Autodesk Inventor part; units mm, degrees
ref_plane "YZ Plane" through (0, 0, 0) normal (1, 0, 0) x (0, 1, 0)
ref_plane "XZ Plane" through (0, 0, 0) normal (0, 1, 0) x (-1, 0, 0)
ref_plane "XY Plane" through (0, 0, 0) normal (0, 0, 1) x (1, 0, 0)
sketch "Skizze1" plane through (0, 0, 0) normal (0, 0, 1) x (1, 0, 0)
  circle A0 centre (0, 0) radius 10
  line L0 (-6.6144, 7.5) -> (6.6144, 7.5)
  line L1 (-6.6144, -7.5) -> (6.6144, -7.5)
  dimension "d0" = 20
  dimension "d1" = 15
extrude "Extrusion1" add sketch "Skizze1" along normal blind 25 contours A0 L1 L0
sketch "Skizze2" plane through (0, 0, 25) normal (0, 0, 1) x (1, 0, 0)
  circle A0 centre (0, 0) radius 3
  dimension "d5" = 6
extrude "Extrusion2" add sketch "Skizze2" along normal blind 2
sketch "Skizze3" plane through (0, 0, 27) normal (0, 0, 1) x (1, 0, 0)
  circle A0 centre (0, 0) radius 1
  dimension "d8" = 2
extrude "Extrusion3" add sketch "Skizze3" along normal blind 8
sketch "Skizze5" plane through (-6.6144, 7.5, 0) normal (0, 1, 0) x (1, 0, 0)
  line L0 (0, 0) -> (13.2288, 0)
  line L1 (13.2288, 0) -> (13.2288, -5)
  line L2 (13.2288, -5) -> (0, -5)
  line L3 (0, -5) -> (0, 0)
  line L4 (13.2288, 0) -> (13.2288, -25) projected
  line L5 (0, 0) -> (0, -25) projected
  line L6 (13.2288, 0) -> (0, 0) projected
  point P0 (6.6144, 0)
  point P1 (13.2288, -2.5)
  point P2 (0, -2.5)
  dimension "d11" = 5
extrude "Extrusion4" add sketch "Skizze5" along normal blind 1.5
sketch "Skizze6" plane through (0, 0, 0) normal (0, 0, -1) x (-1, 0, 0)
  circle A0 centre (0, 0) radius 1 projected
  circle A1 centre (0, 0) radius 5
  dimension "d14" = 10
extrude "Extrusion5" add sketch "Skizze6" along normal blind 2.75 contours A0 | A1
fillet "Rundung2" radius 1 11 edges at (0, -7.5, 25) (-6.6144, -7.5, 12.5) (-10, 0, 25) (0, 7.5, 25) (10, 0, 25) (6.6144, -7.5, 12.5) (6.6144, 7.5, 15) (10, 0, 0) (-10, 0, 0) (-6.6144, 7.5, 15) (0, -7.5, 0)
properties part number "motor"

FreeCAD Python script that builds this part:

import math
import FreeCAD as App
import Part
import Sketcher
Q = App.Units.Quantity


def edges_at(feature, points):
    """Names of the edges that pass closest to the given points."""
    edges = feature.Shape.Edges
    near = lambda p: min(range(len(edges)), key=lambda i: edges[i].distToShape(Part.Vertex(*p))[0])
    return sorted({f"Edge{near(p) + 1}" for p in points})

doc = App.newDocument("Part")
body = doc.addObject("PartDesign::Body", "Body")

# Sketch on XY plane
sketch1 = body.newObject("Sketcher::SketchObject", "Sketch")
sketch1.AttachmentSupport = (doc.getObject("XY_Plane"), [""])
sketch1.MapMode = "FlatFace"
sketch1.addGeometry(Part.ArcOfCircle(Part.Circle(App.Vector(0, 0, 0), App.Vector(0, 0, 1), 10), math.radians(-49), math.radians(49)), False)
sketch1.addGeometry(Part.LineSegment(App.Vector(7, 8, 0), App.Vector(-7, 8, 0)), False)
sketch1.addGeometry(Part.ArcOfCircle(Part.Circle(App.Vector(0, 0, 0), App.Vector(0, 0, 1), 10), math.radians(131), math.radians(229)), False)
sketch1.addGeometry(Part.LineSegment(App.Vector(-7, -8, 0), App.Vector(7, -8, 0)), False)
sketch1.addConstraint(Sketcher.Constraint("Coincident", 0, 2, 1, 1))
sketch1.addConstraint(Sketcher.Constraint("Coincident", 1, 2, 2, 1))
sketch1.addConstraint(Sketcher.Constraint("Coincident", 2, 2, 3, 1))
sketch1.addConstraint(Sketcher.Constraint("Coincident", 3, 2, 0, 1))
sketch1.addConstraint(Sketcher.Constraint("Horizontal", 1))
sketch1.addConstraint(Sketcher.Constraint("Horizontal", 3))
sketch1.addConstraint(Sketcher.Constraint("Coincident", 0, 3, -1, 1))
sketch1.addConstraint(Sketcher.Constraint("Coincident", 2, 3, -1, 1))
sketch1.addConstraint(Sketcher.Constraint("Equal", 0, 2))
sketch1.addConstraint(Sketcher.Constraint("Vertical", 1, 2, 2, 2))
sketch1.addConstraint(Sketcher.Constraint("Radius", 0, Q("10 mm")))
sketch1.addConstraint(Sketcher.Constraint("DistanceY", 2, 2, 1, 2, Q("15 mm")))
pad1 = body.newObject("PartDesign::Pad", "Pad")
pad1.Profile = sketch1
pad1.Length = 25

# Sketch on XY plane
sketch2 = body.newObject("Sketcher::SketchObject", "Sketch001")
sketch2.AttachmentSupport = (doc.getObject("XY_Plane"), [""])
sketch2.MapMode = "FlatFace"
sketch2.AttachmentOffset = App.Placement(App.Vector(0, 0, 25), App.Rotation())
sketch2.addGeometry(Part.Circle(App.Vector(0, 0, 0), App.Vector(0, 0, 1), 3), False)
sketch2.addConstraint(Sketcher.Constraint("Coincident", 0, 3, -1, 1))
sketch2.addConstraint(Sketcher.Constraint("Diameter", 0, Q("6 mm")))
pad2 = body.newObject("PartDesign::Pad", "Pad001")
pad2.Profile = sketch2
pad2.Length = 2

# Sketch on XY plane
sketch3 = body.newObject("Sketcher::SketchObject", "Sketch002")
sketch3.AttachmentSupport = (doc.getObject("XY_Plane"), [""])
sketch3.MapMode = "FlatFace"
sketch3.AttachmentOffset = App.Placement(App.Vector(0, 0, 27), App.Rotation())
sketch3.addGeometry(Part.Circle(App.Vector(0, 0, 0), App.Vector(0, 0, 1), 1), False)
sketch3.addConstraint(Sketcher.Constraint("Coincident", 0, 3, -1, 1))
sketch3.addConstraint(Sketcher.Constraint("Diameter", 0, Q("2 mm")))
pad3 = body.newObject("PartDesign::Pad", "Pad002")
pad3.Profile = sketch3
pad3.Length = 8

# Sketch on XZ plane
sketch4 = body.newObject("Sketcher::SketchObject", "Sketch003")
sketch4.AttachmentSupport = (doc.getObject("XZ_Plane"), [""])
sketch4.MapMode = "FlatFace"
sketch4.AttachmentOffset = App.Placement(App.Vector(0, 0, -7.5), App.Rotation())
sketch4.addGeometry(Part.LineSegment(App.Vector(7, 0, 0), App.Vector(-7, 0, 0)), False)
sketch4.addGeometry(Part.LineSegment(App.Vector(-7, 0, 0), App.Vector(-7, 5, 0)), False)
sketch4.addGeometry(Part.LineSegment(App.Vector(-7, 5, 0), App.Vector(7, 5, 0)), False)
sketch4.addGeometry(Part.LineSegment(App.Vector(7, 5, 0), App.Vector(7, 0, 0)), False)
sketch4.addConstraint(Sketcher.Constraint("Coincident", 0, 2, 1, 1))
sketch4.addConstraint(Sketcher.Constraint("Coincident", 1, 2, 2, 1))
sketch4.addConstraint(Sketcher.Constraint("Coincident", 2, 2, 3, 1))
sketch4.addConstraint(Sketcher.Constraint("Coincident", 3, 2, 0, 1))
sketch4.addConstraint(Sketcher.Constraint("Horizontal", 0))
sketch4.addConstraint(Sketcher.Constraint("Vertical", 1))
sketch4.addConstraint(Sketcher.Constraint("Horizontal", 2))
sketch4.addConstraint(Sketcher.Constraint("Vertical", 3))
sketch4.addConstraint(Sketcher.Constraint("Symmetric", 0, 2, 3, 2, -1, 1))
sketch4.addConstraint(Sketcher.Constraint("DistanceY", 1, 1, 1, 2, Q("5 mm")))
sketch4.addConstraint(Sketcher.Constraint("DistanceX", 0, 2, 0, 1, Q("13.2288 mm")))
pad4 = body.newObject("PartDesign::Pad", "Pad003")
pad4.Profile = sketch4
pad4.Length = 1.5
pad4.Reversed = True

# Sketch on XY plane
sketch5 = body.newObject("Sketcher::SketchObject", "Sketch004")
sketch5.AttachmentSupport = (doc.getObject("XY_Plane"), [""])
sketch5.MapMode = "FlatFace"
sketch5.addGeometry(Part.Circle(App.Vector(0, 0, 0), App.Vector(0, 0, 1), 5), False)
sketch5.addConstraint(Sketcher.Constraint("Coincident", 0, 3, -1, 1))
sketch5.addConstraint(Sketcher.Constraint("Diameter", 0, Q("10 mm")))
pad5 = body.newObject("PartDesign::Pad", "Pad004")
pad5.Profile = sketch5
pad5.Length = 2.75
pad5.Reversed = True
doc.recompute()

fillet = body.newObject("PartDesign::Fillet", "Fillet")
fillet.Base = (pad5, edges_at(pad5, [
    (0, -7.5, 25),
    (-6.614, -7.5, 12.5),
    (-10, 0, 25),
    (0, 7.5, 25),
    (10, 0, 25),
    (6.614, -7.5, 12.5),
    (6.614, 7.5, 15),
    (10, 0, 0),
    (-10, 0, 0),
    (-6.614, 7.5, 15),
    (0, -7.5, 0),
]))
fillet.Radius = 1

doc.recompute()
